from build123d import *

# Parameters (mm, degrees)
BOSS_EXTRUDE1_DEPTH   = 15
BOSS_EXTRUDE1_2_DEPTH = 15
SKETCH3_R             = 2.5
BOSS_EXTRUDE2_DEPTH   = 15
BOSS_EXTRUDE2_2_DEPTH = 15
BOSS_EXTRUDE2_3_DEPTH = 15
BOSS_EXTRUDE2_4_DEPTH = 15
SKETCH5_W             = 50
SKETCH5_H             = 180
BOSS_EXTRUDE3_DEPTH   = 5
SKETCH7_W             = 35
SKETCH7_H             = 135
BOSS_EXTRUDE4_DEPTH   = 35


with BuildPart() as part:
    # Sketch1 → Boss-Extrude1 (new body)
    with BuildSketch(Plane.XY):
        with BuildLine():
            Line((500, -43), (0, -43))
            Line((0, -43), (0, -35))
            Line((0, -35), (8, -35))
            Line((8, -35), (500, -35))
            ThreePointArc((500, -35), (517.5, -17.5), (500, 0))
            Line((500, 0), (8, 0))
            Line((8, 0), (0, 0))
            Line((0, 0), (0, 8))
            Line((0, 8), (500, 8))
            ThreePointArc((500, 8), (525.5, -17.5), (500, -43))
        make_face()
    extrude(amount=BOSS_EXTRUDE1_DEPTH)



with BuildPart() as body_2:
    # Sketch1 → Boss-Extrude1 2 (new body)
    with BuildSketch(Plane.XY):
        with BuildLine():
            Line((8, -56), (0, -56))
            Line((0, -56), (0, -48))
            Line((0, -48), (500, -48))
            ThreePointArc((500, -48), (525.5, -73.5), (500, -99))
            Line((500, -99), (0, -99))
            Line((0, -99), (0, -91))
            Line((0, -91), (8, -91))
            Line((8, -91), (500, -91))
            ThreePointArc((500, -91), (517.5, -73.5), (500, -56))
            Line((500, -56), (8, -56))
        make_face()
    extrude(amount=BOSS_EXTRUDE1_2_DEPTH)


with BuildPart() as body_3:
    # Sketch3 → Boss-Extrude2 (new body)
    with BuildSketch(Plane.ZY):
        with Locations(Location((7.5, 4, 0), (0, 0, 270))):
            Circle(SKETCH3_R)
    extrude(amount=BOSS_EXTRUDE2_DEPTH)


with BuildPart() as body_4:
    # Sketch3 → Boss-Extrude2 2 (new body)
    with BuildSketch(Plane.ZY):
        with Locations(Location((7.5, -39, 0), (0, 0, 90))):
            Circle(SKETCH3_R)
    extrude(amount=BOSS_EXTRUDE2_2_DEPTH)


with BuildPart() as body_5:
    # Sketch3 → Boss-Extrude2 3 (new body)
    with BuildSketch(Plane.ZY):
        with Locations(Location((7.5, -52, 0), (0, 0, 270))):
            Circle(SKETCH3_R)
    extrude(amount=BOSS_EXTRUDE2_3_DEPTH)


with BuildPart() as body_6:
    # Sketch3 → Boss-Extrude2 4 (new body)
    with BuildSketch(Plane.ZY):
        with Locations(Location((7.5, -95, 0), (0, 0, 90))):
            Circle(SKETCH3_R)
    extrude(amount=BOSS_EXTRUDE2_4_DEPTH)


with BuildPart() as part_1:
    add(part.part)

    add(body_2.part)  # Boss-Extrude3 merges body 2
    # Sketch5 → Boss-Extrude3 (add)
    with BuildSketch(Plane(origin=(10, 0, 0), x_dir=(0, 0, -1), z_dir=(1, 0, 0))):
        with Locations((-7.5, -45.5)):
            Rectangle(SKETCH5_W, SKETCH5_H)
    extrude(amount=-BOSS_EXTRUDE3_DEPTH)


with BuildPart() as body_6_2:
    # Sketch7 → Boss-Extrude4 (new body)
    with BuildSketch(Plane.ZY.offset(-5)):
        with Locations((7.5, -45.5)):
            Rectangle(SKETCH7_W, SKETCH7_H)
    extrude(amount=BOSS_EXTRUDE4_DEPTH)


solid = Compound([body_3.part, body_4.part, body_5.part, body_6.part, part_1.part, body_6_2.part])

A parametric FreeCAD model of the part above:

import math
import FreeCAD as App
import Part
import Sketcher

V = App.Vector

doc = App.newDocument("Part")
params = doc.addObject("Spreadsheet::Sheet", "Params")
for row, (alias, value) in enumerate([
    ("sketch1_radius", "25.5 mm"),
    ("sketch1_radius2", "17.5 mm"),
    ("sketch1_width", "500 mm"),
    ("pad1_length", "15 mm"),
    ("sketch2_radius", "17.5 mm"),
    ("sketch2_radius2", "25.5 mm"),
    ("sketch2_width", "500 mm"),
    ("pad2_length", "15 mm"),
    ("sketch3_diameter", "5 mm"),
    ("pad3_length", "15 mm"),
    ("sketch4_diameter", "5 mm"),
    ("pad4_length", "15 mm"),
    ("sketch5_diameter", "5 mm"),
    ("pad5_length", "15 mm"),
    ("sketch6_diameter", "5 mm"),
    ("pad6_length", "15 mm"),
    ("sketch7_width", "180 mm"),
    ("sketch7_height", "50 mm"),
    ("pad7_length", "5 mm"),
    ("sketch8_width", "135 mm"),
    ("sketch8_height", "35 mm"),
    ("pad8_length", "35 mm"),
], start=1):
    params.set(f"A{row}", alias)
    params.set(f"B{row}", "=" + value)
    params.setAlias(f"B{row}", alias)

body = doc.addObject("PartDesign::Body", "Body")

sketch1 = body.newObject("Sketcher::SketchObject", "Sketch")
sketch1.AttachmentSupport = (doc.getObject("XY_Plane"), [""])
sketch1.MapMode = "FlatFace"
sketch1.addGeometry([
    Part.LineSegment(V(0, -43, 0), V(500, -43, 0)),
    Part.ArcOfCircle(Part.Circle(V(500, -18, 0), V(0, 0, 1), 26), math.radians(-90), math.radians(90)),
    Part.LineSegment(V(500, 8, 0), V(0, 8, 0)),
    Part.LineSegment(V(0, 8, 0), V(0, 0, 0)),
    Part.LineSegment(V(0, 0, 0), V(500, 0, 0)),
    Part.ArcOfCircle(Part.Circle(V(500, -18, 0), V(0, 0, 1), 18), math.radians(-90), math.radians(90)),
    Part.LineSegment(V(500, -35, 0), V(0, -35, 0)),
    Part.LineSegment(V(0, -35, 0), V(0, -43, 0)),
], False)
sketch1.addConstraint([
    Sketcher.Constraint("Tangent", 0, 2, 1, 1),
    Sketcher.Constraint("Tangent", 1, 2, 2, 1),
    Sketcher.Constraint("Coincident", 2, 2, 3, 1),
    Sketcher.Constraint("Coincident", 3, 2, 4, 1),
    Sketcher.Constraint("Tangent", 4, 2, 5, 2),
    Sketcher.Constraint("Tangent", 5, 1, 6, 1),
    Sketcher.Constraint("Coincident", 6, 2, 7, 1),
    Sketcher.Constraint("Coincident", 7, 2, 0, 1),
    Sketcher.Constraint("Horizontal", 0),
    Sketcher.Constraint("Horizontal", 2),
    Sketcher.Constraint("Vertical", 3),
    Sketcher.Constraint("Horizontal", 4),
    Sketcher.Constraint("Horizontal", 6),
    Sketcher.Constraint("Vertical", 7),
    Sketcher.Constraint("Coincident", 3, 2, -1, 1),
    Sketcher.Constraint("Coincident", 5, 3, 1, 3),
    Sketcher.Constraint("PointOnObject", 6, 2, -2),
    Sketcher.Constraint("Radius", 1, 25.5),
    Sketcher.Constraint("Radius", 5, 17.5),
    Sketcher.Constraint("DistanceX", 0, 1, 0, 2, 500.0),
])
sketch1.setExpression("Constraints[17]", "Params.sketch1_radius")
sketch1.setExpression("Constraints[18]", "Params.sketch1_radius2")
sketch1.setExpression("Constraints[19]", "Params.sketch1_width")
pad1 = body.newObject("PartDesign::Pad", "Pad")
pad1.Profile = sketch1
pad1.setExpression("Length", "Params.pad1_length")
body2 = doc.addObject("PartDesign::Body", "Body001")

sketch2 = body2.newObject("Sketcher::SketchObject", "Sketch001")
sketch2.AttachmentSupport = (doc.getObject("XY_Plane001"), [""])
sketch2.MapMode = "FlatFace"
sketch2.addGeometry([
    Part.LineSegment(V(0, -48, 0), V(0, -56, 0)),
    Part.LineSegment(V(0, -56, 0), V(500, -56, 0)),
    Part.ArcOfCircle(Part.Circle(V(500, -74, 0), V(0, 0, 1), 18), math.radians(-90), math.radians(90)),
    Part.LineSegment(V(500, -91, 0), V(0, -91, 0)),
    Part.LineSegment(V(0, -91, 0), V(0, -99, 0)),
    Part.LineSegment(V(0, -99, 0), V(500, -99, 0)),
    Part.ArcOfCircle(Part.Circle(V(500, -74, 0), V(0, 0, 1), 26), math.radians(-90), math.radians(90)),
    Part.LineSegment(V(500, -48, 0), V(0, -48, 0)),
], False)
sketch2.addConstraint([
    Sketcher.Constraint("Coincident", 0, 2, 1, 1),
    Sketcher.Constraint("Tangent", 1, 2, 2, 2),
    Sketcher.Constraint("Tangent", 2, 1, 3, 1),
    Sketcher.Constraint("Coincident", 3, 2, 4, 1),
    Sketcher.Constraint("Coincident", 4, 2, 5, 1),
    Sketcher.Constraint("Tangent", 5, 2, 6, 1),
    Sketcher.Constraint("Tangent", 6, 2, 7, 1),
    Sketcher.Constraint("Coincident", 7, 2, 0, 1),
    Sketcher.Constraint("Vertical", 0),
    Sketcher.Constraint("Horizontal", 1),
    Sketcher.Constraint("Horizontal", 3),
    Sketcher.Constraint("Vertical", 4),
    Sketcher.Constraint("Horizontal", 5),
    Sketcher.Constraint("Horizontal", 7),
    Sketcher.Constraint("Coincident", 6, 3, 2, 3),
    Sketcher.Constraint("PointOnObject", 0, 2, -2),
    Sketcher.Constraint("PointOnObject", 3, 2, -2),
    Sketcher.Constraint("Radius", 2, 17.5),
    Sketcher.Constraint("Radius", 6, 25.5),
    Sketcher.Constraint("DistanceX", 1, 1, 1, 2, 500.0),
    Sketcher.Constraint("DistanceY", 0, 2, -1, 1, 56.0),
])
sketch2.setExpression("Constraints[17]", "Params.sketch2_radius")
sketch2.setExpression("Constraints[18]", "Params.sketch2_radius2")
sketch2.setExpression("Constraints[19]", "Params.sketch2_width")
pad2 = body2.newObject("PartDesign::Pad", "Pad001")
pad2.Profile = sketch2
pad2.setExpression("Length", "Params.pad2_length")
body3 = doc.addObject("PartDesign::Body", "Body002")

sketch3 = body3.newObject("Sketcher::SketchObject", "Sketch002")
sketch3.AttachmentSupport = (doc.getObject("YZ_Plane002"), [""])
sketch3.MapMode = "FlatFace"
sketch3.addGeometry(Part.Circle(V(4, 7.5, 0), V(0, 0, 1), 2.5), False)
sketch3.addConstraint([
    Sketcher.Constraint("Diameter", 0, 5.0),
    Sketcher.Constraint("DistanceX", -1, 1, 0, 3, 4.0),
    Sketcher.Constraint("DistanceY", -1, 1, 0, 3, 7.5),
])
sketch3.setExpression("Constraints[0]", "Params.sketch3_diameter")
pad3 = body3.newObject("PartDesign::Pad", "Pad002")
pad3.Profile = sketch3
pad3.setExpression("Length", "Params.pad3_length")
pad3.Reversed = True
body4 = doc.addObject("PartDesign::Body", "Body003")

sketch4 = body4.newObject("Sketcher::SketchObject", "Sketch003")
sketch4.AttachmentSupport = (doc.getObject("YZ_Plane003"), [""])
sketch4.MapMode = "FlatFace"
sketch4.addGeometry(Part.Circle(V(-39, 7.5, 0), V(0, 0, 1), 2.5), False)
sketch4.addConstraint([
    Sketcher.Constraint("Diameter", 0, 5.0),
    Sketcher.Constraint("DistanceX", 0, 3, -1, 1, 39.0),
    Sketcher.Constraint("DistanceY", -1, 1, 0, 3, 7.5),
])
sketch4.setExpression("Constraints[0]", "Params.sketch4_diameter")
pad4 = body4.newObject("PartDesign::Pad", "Pad003")
pad4.Profile = sketch4
pad4.setExpression("Length", "Params.pad4_length")
pad4.Reversed = True
body5 = doc.addObject("PartDesign::Body", "Body004")

sketch5 = body5.newObject("Sketcher::SketchObject", "Sketch004")
sketch5.AttachmentSupport = (doc.getObject("YZ_Plane004"), [""])
sketch5.MapMode = "FlatFace"
sketch5.addGeometry(Part.Circle(V(-52, 7.5, 0), V(0, 0, 1), 2.5), False)
sketch5.addConstraint([
    Sketcher.Constraint("Diameter", 0, 5.0),
    Sketcher.Constraint("DistanceX", 0, 3, -1, 1, 52.0),
    Sketcher.Constraint("DistanceY", -1, 1, 0, 3, 7.5),
])
sketch5.setExpression("Constraints[0]", "Params.sketch5_diameter")
pad5 = body5.newObject("PartDesign::Pad", "Pad004")
pad5.Profile = sketch5
pad5.setExpression("Length", "Params.pad5_length")
pad5.Reversed = True
body6 = doc.addObject("PartDesign::Body", "Body005")

sketch6 = body6.newObject("Sketcher::SketchObject", "Sketch005")
sketch6.AttachmentSupport = (doc.getObject("YZ_Plane005"), [""])
sketch6.MapMode = "FlatFace"
sketch6.addGeometry(Part.Circle(V(-95, 7.5, 0), V(0, 0, 1), 2.5), False)
sketch6.addConstraint([
    Sketcher.Constraint("Diameter", 0, 5.0),
    Sketcher.Constraint("DistanceX", 0, 3, -1, 1, 95.0),
    Sketcher.Constraint("DistanceY", -1, 1, 0, 3, 7.5),
])
sketch6.setExpression("Constraints[0]", "Params.sketch6_diameter")
pad6 = body6.newObject("PartDesign::Pad", "Pad005")
pad6.Profile = sketch6
pad6.setExpression("Length", "Params.pad6_length")
pad6.Reversed = True
body.AllowCompound = True
doc.recompute()

boolean = body.newObject("PartDesign::Boolean", "Boolean")
boolean.Type = "Fuse"
boolean.addObjects([body2])

sketch7 = body.newObject("Sketcher::SketchObject", "Sketch006")
sketch7.AttachmentSupport = (doc.getObject("YZ_Plane"), [""])
sketch7.MapMode = "FlatFace"
sketch7.AttachmentOffset = App.Placement(V(0, 0, 10), App.Rotation())
sketch7.addGeometry([
    Part.LineSegment(V(44, 32, 0), V(-136, 32, 0)),
    Part.LineSegment(V(-136, 32, 0), V(-136, -18, 0)),
    Part.LineSegment(V(-136, -18, 0), V(44, -18, 0)),
    Part.LineSegment(V(44, -18, 0), V(44, 32, 0)),
], False)
sketch7.addConstraint([
    Sketcher.Constraint("Coincident", 0, 2, 1, 1),
    Sketcher.Constraint("Coincident", 1, 2, 2, 1),
    Sketcher.Constraint("Coincident", 2, 2, 3, 1),
    Sketcher.Constraint("Coincident", 3, 2, 0, 1),
    Sketcher.Constraint("Horizontal", 0),
    Sketcher.Constraint("Vertical", 1),
    Sketcher.Constraint("Horizontal", 2),
    Sketcher.Constraint("Vertical", 3),
    Sketcher.Constraint("DistanceX", 0, 2, 0, 1, 180.0),
    Sketcher.Constraint("DistanceY", 1, 2, 1, 1, 50.0),
    Sketcher.Constraint("DistanceX", 0, 2, -1, 1, 135.5),
    Sketcher.Constraint("DistanceY", -1, 1, 0, 2, 32.5),
])
sketch7.setExpression("Constraints[8]", "Params.sketch7_width")
sketch7.setExpression("Constraints[9]", "Params.sketch7_height")
pad7 = body.newObject("PartDesign::Pad", "Pad006")
pad7.Profile = sketch7
pad7.setExpression("Length", "Params.pad7_length")
pad7.Reversed = True
body7 = doc.addObject("PartDesign::Body", "Body006")

sketch8 = body7.newObject("Sketcher::SketchObject", "Sketch007")
sketch8.AttachmentSupport = (doc.getObject("YZ_Plane006"), [""])
sketch8.MapMode = "FlatFace"
sketch8.AttachmentOffset = App.Placement(V(0, 0, 5), App.Rotation())
sketch8.addGeometry([
    Part.LineSegment(V(22, -10, 0), V(-113, -10, 0)),
    Part.LineSegment(V(-113, -10, 0), V(-113, 25, 0)),
    Part.LineSegment(V(-113, 25, 0), V(22, 25, 0)),
    Part.LineSegment(V(22, 25, 0), V(22, -10, 0)),
], False)
sketch8.addConstraint([
    Sketcher.Constraint("Coincident", 0, 2, 1, 1),
    Sketcher.Constraint("Coincident", 1, 2, 2, 1),
    Sketcher.Constraint("Coincident", 2, 2, 3, 1),
    Sketcher.Constraint("Coincident", 3, 2, 0, 1),
    Sketcher.Constraint("Horizontal", 0),
    Sketcher.Constraint("Vertical", 1),
    Sketcher.Constraint("Horizontal", 2),
    Sketcher.Constraint("Vertical", 3),
    Sketcher.Constraint("DistanceX", 0, 2, 0, 1, 135.0),
    Sketcher.Constraint("DistanceY", 1, 1, 1, 2, 35.0),
    Sketcher.Constraint("DistanceX", 0, 2, -1, 1, 113.0),
    Sketcher.Constraint("DistanceY", 0, 2, -1, 1, 10.0),
])
sketch8.setExpression("Constraints[8]", "Params.sketch8_width")
sketch8.setExpression("Constraints[9]", "Params.sketch8_height")
pad8 = body7.newObject("PartDesign::Pad", "Pad007")
pad8.Profile = sketch8
pad8.setExpression("Length", "Params.pad8_length")
pad8.Reversed = True

doc.recompute()
